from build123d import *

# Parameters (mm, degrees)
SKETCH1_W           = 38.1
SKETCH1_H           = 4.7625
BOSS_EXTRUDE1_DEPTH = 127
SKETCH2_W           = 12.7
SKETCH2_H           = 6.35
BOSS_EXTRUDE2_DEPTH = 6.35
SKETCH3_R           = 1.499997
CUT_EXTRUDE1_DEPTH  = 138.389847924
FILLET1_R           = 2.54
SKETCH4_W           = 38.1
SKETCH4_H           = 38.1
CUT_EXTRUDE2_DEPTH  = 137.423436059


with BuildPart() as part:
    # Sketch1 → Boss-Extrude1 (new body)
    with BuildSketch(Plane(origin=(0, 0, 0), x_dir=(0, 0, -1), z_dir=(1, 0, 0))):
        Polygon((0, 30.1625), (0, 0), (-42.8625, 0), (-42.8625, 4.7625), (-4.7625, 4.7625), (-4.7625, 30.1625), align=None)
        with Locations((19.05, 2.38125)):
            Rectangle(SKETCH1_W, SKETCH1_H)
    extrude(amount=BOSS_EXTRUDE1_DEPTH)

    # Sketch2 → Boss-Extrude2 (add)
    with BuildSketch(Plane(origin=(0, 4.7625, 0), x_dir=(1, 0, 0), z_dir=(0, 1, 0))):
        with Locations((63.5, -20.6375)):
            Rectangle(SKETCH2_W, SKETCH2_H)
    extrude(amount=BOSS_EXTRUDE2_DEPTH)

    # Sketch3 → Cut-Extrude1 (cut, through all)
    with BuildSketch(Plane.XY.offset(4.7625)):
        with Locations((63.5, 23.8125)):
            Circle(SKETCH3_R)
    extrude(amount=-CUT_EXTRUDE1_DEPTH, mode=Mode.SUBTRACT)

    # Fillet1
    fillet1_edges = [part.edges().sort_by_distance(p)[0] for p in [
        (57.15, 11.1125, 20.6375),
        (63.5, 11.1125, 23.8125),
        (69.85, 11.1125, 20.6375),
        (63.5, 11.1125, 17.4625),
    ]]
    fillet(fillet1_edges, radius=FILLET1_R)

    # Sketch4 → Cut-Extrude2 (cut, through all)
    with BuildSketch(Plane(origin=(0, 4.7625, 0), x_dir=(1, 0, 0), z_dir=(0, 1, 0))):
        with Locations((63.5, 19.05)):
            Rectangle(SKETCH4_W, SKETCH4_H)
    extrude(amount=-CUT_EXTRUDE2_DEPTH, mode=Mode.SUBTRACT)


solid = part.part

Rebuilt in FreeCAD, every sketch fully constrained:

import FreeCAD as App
import Part
import Sketcher

V = App.Vector
Q = App.Units.Quantity


def edges_at(feature, points):
    """Names of the edges that pass closest to the given points."""
    edges = feature.Shape.Edges
    near = lambda p: min(range(len(edges)), key=lambda i: edges[i].distToShape(Part.Vertex(*p))[0])
    return sorted({f"Edge{near(p) + 1}" for p in points})

doc = App.newDocument("Part")
body = doc.addObject("PartDesign::Body", "Body")

sketch1 = body.newObject("Sketcher::SketchObject", "Sketch")
sketch1.AttachmentSupport = (doc.getObject("YZ_Plane"), [""])
sketch1.MapMode = "FlatFace"
sketch1.addGeometry([
    Part.LineSegment(V(4.8, 0, 0), V(30.2, 0, 0)),
    Part.LineSegment(V(30.2, 0, 0), V(30.2, 4.8, 0)),
    Part.LineSegment(V(30.2, 4.8, 0), V(4.8, 4.8, 0)),
    Part.LineSegment(V(4.8, 4.8, 0), V(4.8, 42.9, 0)),
    Part.LineSegment(V(4.8, 42.9, 0), V(0, 42.9, 0)),
    Part.LineSegment(V(0, 42.9, 0), V(0, -38.1, 0)),
    Part.LineSegment(V(0, -38.1, 0), V(4.8, -38.1, 0)),
    Part.LineSegment(V(4.8, -38.1, 0), V(4.8, 0, 0)),
], False)
sketch1.addConstraint([
    Sketcher.Constraint("Coincident", 0, 2, 1, 1),
    Sketcher.Constraint("Coincident", 1, 2, 2, 1),
    Sketcher.Constraint("Coincident", 2, 2, 3, 1),
    Sketcher.Constraint("Coincident", 3, 2, 4, 1),
    Sketcher.Constraint("Coincident", 4, 2, 5, 1),
    Sketcher.Constraint("Coincident", 5, 2, 6, 1),
    Sketcher.Constraint("Coincident", 6, 2, 7, 1),
    Sketcher.Constraint("Coincident", 7, 2, 0, 1),
    Sketcher.Constraint("Horizontal", 0),
    Sketcher.Constraint("Vertical", 1),
    Sketcher.Constraint("Horizontal", 2),
    Sketcher.Constraint("Vertical", 3),
    Sketcher.Constraint("Horizontal", 4),
    Sketcher.Constraint("Vertical", 5),
    Sketcher.Constraint("Horizontal", 6),
    Sketcher.Constraint("Vertical", 7),
    Sketcher.Constraint("PointOnObject", 0, 2, -1),
    Sketcher.Constraint("PointOnObject", 4, 2, -2),
    Sketcher.Constraint("Vertical", 3, 2, 6, 2),
    Sketcher.Constraint("Equal", 6, 1),
    Sketcher.Constraint("Equal", 3, 7),
    Sketcher.Constraint("DistanceX", 0, 1, 0, 2, Q("1 in")),
    Sketcher.Constraint("DistanceY", 3, 1, 3, 2, Q("1.5 in")),
    Sketcher.Constraint("DistanceX", 4, 2, 4, 1, Q("0.1875 in")),
])
pad1 = body.newObject("PartDesign::Pad", "Pad")
pad1.Profile = sketch1
pad1.Length = Q("5 in")

sketch2 = body.newObject("Sketcher::SketchObject", "Sketch001")
sketch2.AttachmentSupport = (doc.getObject("XZ_Plane"), [""])
sketch2.MapMode = "FlatFace"
sketch2.AttachmentOffset = App.Placement(V(0, 0, -0.1875 * 25.4), App.Rotation())
sketch2.addGeometry([
    Part.LineSegment(V(57, 17, 0), V(57, 24, 0)),
    Part.LineSegment(V(57, 24, 0), V(70, 24, 0)),
    Part.LineSegment(V(70, 24, 0), V(70, 17, 0)),
    Part.LineSegment(V(70, 17, 0), V(57, 17, 0)),
], False)
sketch2.addConstraint([
    Sketcher.Constraint("Coincident", 0, 2, 1, 1),
    Sketcher.Constraint("Coincident", 1, 2, 2, 1),
    Sketcher.Constraint("Coincident", 2, 2, 3, 1),
    Sketcher.Constraint("Coincident", 3, 2, 0, 1),
    Sketcher.Constraint("Vertical", 0),
    Sketcher.Constraint("Horizontal", 1),
    Sketcher.Constraint("Vertical", 2),
    Sketcher.Constraint("Horizontal", 3),
    Sketcher.Constraint("DistanceX", 1, 1, 1, 2, Q("0.5 in")),
    Sketcher.Constraint("DistanceY", 0, 1, 0, 2, Q("0.25 in")),
    Sketcher.Constraint("DistanceX", -1, 1, 0, 2, Q("2.25 in")),
    Sketcher.Constraint("DistanceY", -1, 1, 0, 2, Q("0.9375 in")),
])
pad2 = body.newObject("PartDesign::Pad", "Pad001")
pad2.Profile = sketch2
pad2.Length = Q("0.25 in")
pad2.Reversed = True

sketch3 = body.newObject("Sketcher::SketchObject", "Sketch002")
sketch3.AttachmentSupport = (doc.getObject("XY_Plane"), [""])
sketch3.MapMode = "FlatFace"
sketch3.AttachmentOffset = App.Placement(V(0, 0, 0.1875 * 25.4), App.Rotation())
sketch3.addGeometry(Part.Circle(V(63.5, 23.8, 0), V(0, 0, 1), 1.5), False)
sketch3.addConstraint([
    Sketcher.Constraint("DistanceX", -1, 1, 0, 3, Q("2.5 in")),
    Sketcher.Constraint("DistanceY", -1, 1, 0, 3, Q("0.9375 in")),
    Sketcher.Constraint("Diameter", 0, 2.999994),
])
pocket1 = body.newObject("PartDesign::Pocket", "Pocket")
pocket1.Profile = sketch3
pocket1.Type = "ThroughAll"
doc.recompute()

fillet = body.newObject("PartDesign::Fillet", "Fillet")
fillet.Base = (pocket1, edges_at(pocket1, [
    (57.15, 11.113, 20.637),
    (63.5, 11.113, 23.812),
    (69.85, 11.113, 20.637),
    (63.5, 11.113, 17.462),
]))
fillet.Radius = Q("0.1 in")

sketch4 = body.newObject("Sketcher::SketchObject", "Sketch003")
sketch4.AttachmentSupport = (doc.getObject("XZ_Plane"), [""])
sketch4.MapMode = "FlatFace"
sketch4.AttachmentOffset = App.Placement(V(0, 0, -0.1875 * 25.4), App.Rotation())
sketch4.addGeometry([
    Part.LineSegment(V(44, -38, 0), V(44, 0, 0)),
    Part.LineSegment(V(44, 0, 0), V(83, 0, 0)),
    Part.LineSegment(V(83, 0, 0), V(83, -38, 0)),
    Part.LineSegment(V(83, -38, 0), V(44, -38, 0)),
], False)
sketch4.addConstraint([
    Sketcher.Constraint("Coincident", 0, 2, 1, 1),
    Sketcher.Constraint("Coincident", 1, 2, 2, 1),
    Sketcher.Constraint("Coincident", 2, 2, 3, 1),
    Sketcher.Constraint("Coincident", 3, 2, 0, 1),
    Sketcher.Constraint("Vertical", 0),
    Sketcher.Constraint("Horizontal", 1),
    Sketcher.Constraint("Vertical", 2),
    Sketcher.Constraint("Horizontal", 3),
    Sketcher.Constraint("PointOnObject", 0, 2, -1),
    Sketcher.Constraint("Equal", 3, 0),
    Sketcher.Constraint("DistanceX", 1, 1, 1, 2, Q("1.5 in")),
    Sketcher.Constraint("DistanceX", -1, 1, 0, 2, Q("1.75 in")),
])
pocket2 = body.newObject("PartDesign::Pocket", "Pocket001")
pocket2.Profile = sketch4
pocket2.Type = "ThroughAll"
pocket2.Reversed = True

doc.recompute()
